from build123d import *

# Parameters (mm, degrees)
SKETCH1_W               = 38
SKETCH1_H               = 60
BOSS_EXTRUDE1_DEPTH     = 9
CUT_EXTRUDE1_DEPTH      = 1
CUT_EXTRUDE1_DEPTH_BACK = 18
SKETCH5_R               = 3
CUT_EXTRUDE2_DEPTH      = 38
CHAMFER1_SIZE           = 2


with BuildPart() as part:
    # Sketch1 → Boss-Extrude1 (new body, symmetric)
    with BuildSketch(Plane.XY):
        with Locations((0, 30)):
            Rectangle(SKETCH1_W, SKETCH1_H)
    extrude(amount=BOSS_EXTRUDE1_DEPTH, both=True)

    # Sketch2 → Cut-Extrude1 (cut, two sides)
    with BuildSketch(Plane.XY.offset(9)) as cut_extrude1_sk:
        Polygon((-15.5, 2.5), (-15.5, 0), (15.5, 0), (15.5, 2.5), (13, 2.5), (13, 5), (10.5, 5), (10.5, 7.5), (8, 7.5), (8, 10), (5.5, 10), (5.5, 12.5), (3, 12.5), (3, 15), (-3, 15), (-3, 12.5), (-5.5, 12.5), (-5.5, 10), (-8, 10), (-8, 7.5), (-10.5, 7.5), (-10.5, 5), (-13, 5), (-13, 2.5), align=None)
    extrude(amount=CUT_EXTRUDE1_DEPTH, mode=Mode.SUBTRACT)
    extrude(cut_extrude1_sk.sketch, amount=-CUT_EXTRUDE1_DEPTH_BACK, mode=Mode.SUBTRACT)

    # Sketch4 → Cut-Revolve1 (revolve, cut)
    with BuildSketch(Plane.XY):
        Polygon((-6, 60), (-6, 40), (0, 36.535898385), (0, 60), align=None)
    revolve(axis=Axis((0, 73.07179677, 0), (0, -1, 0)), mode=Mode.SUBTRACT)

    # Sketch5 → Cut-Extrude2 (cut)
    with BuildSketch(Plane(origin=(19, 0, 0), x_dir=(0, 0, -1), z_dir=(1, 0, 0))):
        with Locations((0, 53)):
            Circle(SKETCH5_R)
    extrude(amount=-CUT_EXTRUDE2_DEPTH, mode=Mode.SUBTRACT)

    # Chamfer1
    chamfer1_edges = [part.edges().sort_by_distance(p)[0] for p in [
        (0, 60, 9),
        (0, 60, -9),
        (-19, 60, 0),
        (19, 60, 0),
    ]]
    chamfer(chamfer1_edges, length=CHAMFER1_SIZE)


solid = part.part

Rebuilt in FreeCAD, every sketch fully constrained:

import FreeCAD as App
import Part
import Sketcher
from FreeCAD import Vector
Q = App.Units.Quantity


def edges_at(feature, points):
    """Names of the edges that pass closest to the given points."""
    edges = feature.Shape.Edges
    near = lambda p: min(range(len(edges)), key=lambda i: edges[i].distToShape(Part.Vertex(*p))[0])
    return sorted({f"Edge{near(p) + 1}" for p in points})


def add_polygon(sketch, points):
    """Adds a closed chain of lines whose ends are joined by coincident constraints."""
    first, n = sketch.GeometryCount, len(points)
    for a, b in zip(points, points[1:] + points[:1]):
        sketch.addGeometry(Part.LineSegment(App.Vector(*a, 0), App.Vector(*b, 0)), False)
    for i in range(n):
        sketch.addConstraint(Sketcher.Constraint("Coincident", first + i, 2, first + (i + 1) % n, 1))

doc = App.newDocument("Part")
params = doc.addObject("Spreadsheet::Sheet", "Params")
for row, (alias, value) in enumerate([
    ("sketch1_width", "38 mm"),
    ("sketch1_height", "60 mm"),
    ("pad1_length", "18 mm"),
    ("sketch2_width", "31 mm"),
    ("sketch2_width2", "6 mm"),
    ("sketch3_width", "6 mm"),
    ("sketch3_height", "20 mm"),
    ("groove_angle", "360 deg"),
    ("sketch4_diameter", "6 mm"),
    ("pocket2_length", "38 mm"),
    ("chamfer_size", "2 mm"),
], start=1):
    params.set(f"A{row}", alias)
    params.set(f"B{row}", "=" + value)
    params.setAlias(f"B{row}", alias)

body = doc.addObject("PartDesign::Body", "Body")

# Sketch on XY plane
sketch1 = body.newObject("Sketcher::SketchObject", "Sketch")
sketch1.AttachmentSupport = (doc.getObject("XY_Plane"), [""])
sketch1.MapMode = "FlatFace"
add_polygon(sketch1, [(-19, 60), (-19, 0), (19, 0), (19, 60)])  # lines 0-3
sketch1.addConstraint([
    Sketcher.Constraint("Vertical", 0),
    Sketcher.Constraint("Horizontal", 1),
    Sketcher.Constraint("Vertical", 2),
    Sketcher.Constraint("Horizontal", 3),
    Sketcher.Constraint("Symmetric", 0, 2, 1, 2, -1, 1),
    Sketcher.Constraint("DistanceX", 1, 1, 1, 2, 38.0),
    Sketcher.Constraint("DistanceY", 0, 2, 0, 1, 60.0),
])
sketch1.setExpression("Constraints[9]", "Params.sketch1_width")
sketch1.setExpression("Constraints[10]", "Params.sketch1_height")
pad1 = body.newObject("PartDesign::Pad", "Pad")
pad1.Profile = sketch1
pad1.setExpression("Length", "Params.pad1_length")
pad1.Midplane = True

# Sketch on XY plane
sketch2 = body.newObject("Sketcher::SketchObject", "Sketch001")
sketch2.AttachmentSupport = (doc.getObject("XY_Plane"), [""])
sketch2.MapMode = "FlatFace"
sketch2.AttachmentOffset = App.Placement(Vector(0, 0, 9), App.Rotation())
add_polygon(sketch2, [(-15.5, 2.5), (-15.5, 0), (15.5, 0), (15.5, 2.5), (13, 2.5), (13, 5), (10.5, 5), (10.5, 7.5), (8, 7.5), (8, 10), (5.5, 10), (5.5, 12.5), (3, 12.5), (3, 15), (-3, 15), (-3, 12.5), (-5.5, 12.5), (-5.5, 10), (-8, 10), (-8, 7.5), (-10.5, 7.5), (-10.5, 5), (-13, 5), (-13, 2.5)])  # lines 0-23
sketch2.addConstraint([
    Sketcher.Constraint("Vertical", 0),
    Sketcher.Constraint("Horizontal", 1),
    Sketcher.Constraint("Vertical", 2),
    Sketcher.Constraint("Horizontal", 3),
    Sketcher.Constraint("Vertical", 4),
    Sketcher.Constraint("Horizontal", 5),
    Sketcher.Constraint("Vertical", 6),
    Sketcher.Constraint("Horizontal", 7),
    Sketcher.Constraint("Vertical", 8),
    Sketcher.Constraint("Horizontal", 9),
    Sketcher.Constraint("Vertical", 10),
    Sketcher.Constraint("Horizontal", 11),
    Sketcher.Constraint("Vertical", 12),
    Sketcher.Constraint("Horizontal", 13),
    Sketcher.Constraint("Vertical", 14),
    Sketcher.Constraint("Horizontal", 15),
    Sketcher.Constraint("Vertical", 16),
    Sketcher.Constraint("Horizontal", 17),
    Sketcher.Constraint("Vertical", 18),
    Sketcher.Constraint("Horizontal", 19),
    Sketcher.Constraint("Vertical", 20),
    Sketcher.Constraint("Horizontal", 21),
    Sketcher.Constraint("Vertical", 22),
    Sketcher.Constraint("Horizontal", 23),
    Sketcher.Constraint("Symmetric", 0, 2, 1, 2, -1, 1),
    Sketcher.Constraint("Symmetric", 11, 2, 14, 2, -2),
    Sketcher.Constraint("Symmetric", 9, 2, 16, 2, -2),
    Sketcher.Constraint("Symmetric", 7, 2, 18, 2, -2),
    Sketcher.Constraint("Symmetric", 5, 2, 20, 2, -2),
    Sketcher.Constraint("Symmetric", 3, 2, 22, 2, -2),
    Sketcher.Constraint("Equal", 3, 5),
    Sketcher.Constraint("Equal", 5, 7),
    Sketcher.Constraint("Equal", 7, 9),
    Sketcher.Constraint("Equal", 9, 11),
    Sketcher.Constraint("Equal", 23, 0),
    Sketcher.Constraint("Equal", 2, 4),
    Sketcher.Constraint("Equal", 4, 6),
    Sketcher.Constraint("Equal", 6, 8),
    Sketcher.Constraint("Equal", 8, 10),
    Sketcher.Constraint("Equal", 10, 12),
    Sketcher.Constraint("DistanceX", 1, 1, 1, 2, 31.0),
    Sketcher.Constraint("DistanceX", 13, 2, 13, 1, 6.0),
])
sketch2.setExpression("Constraints[64]", "Params.sketch2_width")
sketch2.setExpression("Constraints[65]", "Params.sketch2_width2")
pocket1 = body.newObject("PartDesign::Pocket", "Pocket")
pocket1.Profile = sketch2
pocket1.Type = "ThroughAll"
pocket1.Midplane = True

# Sketch on XY plane
sketch3 = body.newObject("Sketcher::SketchObject", "Sketch002")
sketch3.AttachmentSupport = (doc.getObject("XY_Plane"), [""])
sketch3.MapMode = "FlatFace"
add_polygon(sketch3, [(-6, 60), (-6, 40), (0, 36.535898), (0, 60)])  # lines 0-3
sketch3.addConstraint([
    Sketcher.Constraint("Vertical", 0),
    Sketcher.Constraint("Vertical", 2),
    Sketcher.Constraint("Horizontal", 3),
    Sketcher.Constraint("PointOnObject", 1, 2, -2),
    Sketcher.Constraint("DistanceX", 3, 2, 3, 1, 6.0),
    Sketcher.Constraint("DistanceY", 0, 2, 0, 1, 20.0),
    Sketcher.Constraint("Angle", 1, Q("-30 deg")),
    Sketcher.Constraint("DistanceY", -1, 1, 0, 2, 40.0),
])
sketch3.setExpression("Constraints[8]", "Params.sketch3_width")
sketch3.setExpression("Constraints[9]", "Params.sketch3_height")
groove = body.newObject("PartDesign::Groove", "Groove")
groove.Profile = sketch3
groove.ReferenceAxis = (sketch3, ["V_Axis"])
groove.setExpression("Angle", "Params.groove_angle")

# Sketch on YZ plane
sketch4 = body.newObject("Sketcher::SketchObject", "Sketch003")
sketch4.AttachmentSupport = (doc.getObject("YZ_Plane"), [""])
sketch4.MapMode = "FlatFace"
sketch4.AttachmentOffset = App.Placement(Vector(0, 0, 19), App.Rotation())
sketch4.addGeometry(Part.Circle(Vector(53, 0, 0), Vector(0, 0, 1), 3), False)
sketch4.addConstraint([
    Sketcher.Constraint("PointOnObject", 0, 3, -1),
    Sketcher.Constraint("Diameter", 0, 6.0),
    Sketcher.Constraint("DistanceX", -1, 1, 0, 3, 53.0),
])
sketch4.setExpression("Constraints[1]", "Params.sketch4_diameter")
pocket2 = body.newObject("PartDesign::Pocket", "Pocket001")
pocket2.Profile = sketch4
pocket2.setExpression("Length", "Params.pocket2_length")
doc.recompute()

chamfer = body.newObject("PartDesign::Chamfer", "Chamfer")
chamfer.Base = (pocket2, edges_at(pocket2, [
    (0, 60, 9),
    (0, 60, -9),
    (-19, 60, 0),
    (19, 60, 0),
]))
chamfer.setExpression("Size", "Params.chamfer_size")

doc.recompute()
